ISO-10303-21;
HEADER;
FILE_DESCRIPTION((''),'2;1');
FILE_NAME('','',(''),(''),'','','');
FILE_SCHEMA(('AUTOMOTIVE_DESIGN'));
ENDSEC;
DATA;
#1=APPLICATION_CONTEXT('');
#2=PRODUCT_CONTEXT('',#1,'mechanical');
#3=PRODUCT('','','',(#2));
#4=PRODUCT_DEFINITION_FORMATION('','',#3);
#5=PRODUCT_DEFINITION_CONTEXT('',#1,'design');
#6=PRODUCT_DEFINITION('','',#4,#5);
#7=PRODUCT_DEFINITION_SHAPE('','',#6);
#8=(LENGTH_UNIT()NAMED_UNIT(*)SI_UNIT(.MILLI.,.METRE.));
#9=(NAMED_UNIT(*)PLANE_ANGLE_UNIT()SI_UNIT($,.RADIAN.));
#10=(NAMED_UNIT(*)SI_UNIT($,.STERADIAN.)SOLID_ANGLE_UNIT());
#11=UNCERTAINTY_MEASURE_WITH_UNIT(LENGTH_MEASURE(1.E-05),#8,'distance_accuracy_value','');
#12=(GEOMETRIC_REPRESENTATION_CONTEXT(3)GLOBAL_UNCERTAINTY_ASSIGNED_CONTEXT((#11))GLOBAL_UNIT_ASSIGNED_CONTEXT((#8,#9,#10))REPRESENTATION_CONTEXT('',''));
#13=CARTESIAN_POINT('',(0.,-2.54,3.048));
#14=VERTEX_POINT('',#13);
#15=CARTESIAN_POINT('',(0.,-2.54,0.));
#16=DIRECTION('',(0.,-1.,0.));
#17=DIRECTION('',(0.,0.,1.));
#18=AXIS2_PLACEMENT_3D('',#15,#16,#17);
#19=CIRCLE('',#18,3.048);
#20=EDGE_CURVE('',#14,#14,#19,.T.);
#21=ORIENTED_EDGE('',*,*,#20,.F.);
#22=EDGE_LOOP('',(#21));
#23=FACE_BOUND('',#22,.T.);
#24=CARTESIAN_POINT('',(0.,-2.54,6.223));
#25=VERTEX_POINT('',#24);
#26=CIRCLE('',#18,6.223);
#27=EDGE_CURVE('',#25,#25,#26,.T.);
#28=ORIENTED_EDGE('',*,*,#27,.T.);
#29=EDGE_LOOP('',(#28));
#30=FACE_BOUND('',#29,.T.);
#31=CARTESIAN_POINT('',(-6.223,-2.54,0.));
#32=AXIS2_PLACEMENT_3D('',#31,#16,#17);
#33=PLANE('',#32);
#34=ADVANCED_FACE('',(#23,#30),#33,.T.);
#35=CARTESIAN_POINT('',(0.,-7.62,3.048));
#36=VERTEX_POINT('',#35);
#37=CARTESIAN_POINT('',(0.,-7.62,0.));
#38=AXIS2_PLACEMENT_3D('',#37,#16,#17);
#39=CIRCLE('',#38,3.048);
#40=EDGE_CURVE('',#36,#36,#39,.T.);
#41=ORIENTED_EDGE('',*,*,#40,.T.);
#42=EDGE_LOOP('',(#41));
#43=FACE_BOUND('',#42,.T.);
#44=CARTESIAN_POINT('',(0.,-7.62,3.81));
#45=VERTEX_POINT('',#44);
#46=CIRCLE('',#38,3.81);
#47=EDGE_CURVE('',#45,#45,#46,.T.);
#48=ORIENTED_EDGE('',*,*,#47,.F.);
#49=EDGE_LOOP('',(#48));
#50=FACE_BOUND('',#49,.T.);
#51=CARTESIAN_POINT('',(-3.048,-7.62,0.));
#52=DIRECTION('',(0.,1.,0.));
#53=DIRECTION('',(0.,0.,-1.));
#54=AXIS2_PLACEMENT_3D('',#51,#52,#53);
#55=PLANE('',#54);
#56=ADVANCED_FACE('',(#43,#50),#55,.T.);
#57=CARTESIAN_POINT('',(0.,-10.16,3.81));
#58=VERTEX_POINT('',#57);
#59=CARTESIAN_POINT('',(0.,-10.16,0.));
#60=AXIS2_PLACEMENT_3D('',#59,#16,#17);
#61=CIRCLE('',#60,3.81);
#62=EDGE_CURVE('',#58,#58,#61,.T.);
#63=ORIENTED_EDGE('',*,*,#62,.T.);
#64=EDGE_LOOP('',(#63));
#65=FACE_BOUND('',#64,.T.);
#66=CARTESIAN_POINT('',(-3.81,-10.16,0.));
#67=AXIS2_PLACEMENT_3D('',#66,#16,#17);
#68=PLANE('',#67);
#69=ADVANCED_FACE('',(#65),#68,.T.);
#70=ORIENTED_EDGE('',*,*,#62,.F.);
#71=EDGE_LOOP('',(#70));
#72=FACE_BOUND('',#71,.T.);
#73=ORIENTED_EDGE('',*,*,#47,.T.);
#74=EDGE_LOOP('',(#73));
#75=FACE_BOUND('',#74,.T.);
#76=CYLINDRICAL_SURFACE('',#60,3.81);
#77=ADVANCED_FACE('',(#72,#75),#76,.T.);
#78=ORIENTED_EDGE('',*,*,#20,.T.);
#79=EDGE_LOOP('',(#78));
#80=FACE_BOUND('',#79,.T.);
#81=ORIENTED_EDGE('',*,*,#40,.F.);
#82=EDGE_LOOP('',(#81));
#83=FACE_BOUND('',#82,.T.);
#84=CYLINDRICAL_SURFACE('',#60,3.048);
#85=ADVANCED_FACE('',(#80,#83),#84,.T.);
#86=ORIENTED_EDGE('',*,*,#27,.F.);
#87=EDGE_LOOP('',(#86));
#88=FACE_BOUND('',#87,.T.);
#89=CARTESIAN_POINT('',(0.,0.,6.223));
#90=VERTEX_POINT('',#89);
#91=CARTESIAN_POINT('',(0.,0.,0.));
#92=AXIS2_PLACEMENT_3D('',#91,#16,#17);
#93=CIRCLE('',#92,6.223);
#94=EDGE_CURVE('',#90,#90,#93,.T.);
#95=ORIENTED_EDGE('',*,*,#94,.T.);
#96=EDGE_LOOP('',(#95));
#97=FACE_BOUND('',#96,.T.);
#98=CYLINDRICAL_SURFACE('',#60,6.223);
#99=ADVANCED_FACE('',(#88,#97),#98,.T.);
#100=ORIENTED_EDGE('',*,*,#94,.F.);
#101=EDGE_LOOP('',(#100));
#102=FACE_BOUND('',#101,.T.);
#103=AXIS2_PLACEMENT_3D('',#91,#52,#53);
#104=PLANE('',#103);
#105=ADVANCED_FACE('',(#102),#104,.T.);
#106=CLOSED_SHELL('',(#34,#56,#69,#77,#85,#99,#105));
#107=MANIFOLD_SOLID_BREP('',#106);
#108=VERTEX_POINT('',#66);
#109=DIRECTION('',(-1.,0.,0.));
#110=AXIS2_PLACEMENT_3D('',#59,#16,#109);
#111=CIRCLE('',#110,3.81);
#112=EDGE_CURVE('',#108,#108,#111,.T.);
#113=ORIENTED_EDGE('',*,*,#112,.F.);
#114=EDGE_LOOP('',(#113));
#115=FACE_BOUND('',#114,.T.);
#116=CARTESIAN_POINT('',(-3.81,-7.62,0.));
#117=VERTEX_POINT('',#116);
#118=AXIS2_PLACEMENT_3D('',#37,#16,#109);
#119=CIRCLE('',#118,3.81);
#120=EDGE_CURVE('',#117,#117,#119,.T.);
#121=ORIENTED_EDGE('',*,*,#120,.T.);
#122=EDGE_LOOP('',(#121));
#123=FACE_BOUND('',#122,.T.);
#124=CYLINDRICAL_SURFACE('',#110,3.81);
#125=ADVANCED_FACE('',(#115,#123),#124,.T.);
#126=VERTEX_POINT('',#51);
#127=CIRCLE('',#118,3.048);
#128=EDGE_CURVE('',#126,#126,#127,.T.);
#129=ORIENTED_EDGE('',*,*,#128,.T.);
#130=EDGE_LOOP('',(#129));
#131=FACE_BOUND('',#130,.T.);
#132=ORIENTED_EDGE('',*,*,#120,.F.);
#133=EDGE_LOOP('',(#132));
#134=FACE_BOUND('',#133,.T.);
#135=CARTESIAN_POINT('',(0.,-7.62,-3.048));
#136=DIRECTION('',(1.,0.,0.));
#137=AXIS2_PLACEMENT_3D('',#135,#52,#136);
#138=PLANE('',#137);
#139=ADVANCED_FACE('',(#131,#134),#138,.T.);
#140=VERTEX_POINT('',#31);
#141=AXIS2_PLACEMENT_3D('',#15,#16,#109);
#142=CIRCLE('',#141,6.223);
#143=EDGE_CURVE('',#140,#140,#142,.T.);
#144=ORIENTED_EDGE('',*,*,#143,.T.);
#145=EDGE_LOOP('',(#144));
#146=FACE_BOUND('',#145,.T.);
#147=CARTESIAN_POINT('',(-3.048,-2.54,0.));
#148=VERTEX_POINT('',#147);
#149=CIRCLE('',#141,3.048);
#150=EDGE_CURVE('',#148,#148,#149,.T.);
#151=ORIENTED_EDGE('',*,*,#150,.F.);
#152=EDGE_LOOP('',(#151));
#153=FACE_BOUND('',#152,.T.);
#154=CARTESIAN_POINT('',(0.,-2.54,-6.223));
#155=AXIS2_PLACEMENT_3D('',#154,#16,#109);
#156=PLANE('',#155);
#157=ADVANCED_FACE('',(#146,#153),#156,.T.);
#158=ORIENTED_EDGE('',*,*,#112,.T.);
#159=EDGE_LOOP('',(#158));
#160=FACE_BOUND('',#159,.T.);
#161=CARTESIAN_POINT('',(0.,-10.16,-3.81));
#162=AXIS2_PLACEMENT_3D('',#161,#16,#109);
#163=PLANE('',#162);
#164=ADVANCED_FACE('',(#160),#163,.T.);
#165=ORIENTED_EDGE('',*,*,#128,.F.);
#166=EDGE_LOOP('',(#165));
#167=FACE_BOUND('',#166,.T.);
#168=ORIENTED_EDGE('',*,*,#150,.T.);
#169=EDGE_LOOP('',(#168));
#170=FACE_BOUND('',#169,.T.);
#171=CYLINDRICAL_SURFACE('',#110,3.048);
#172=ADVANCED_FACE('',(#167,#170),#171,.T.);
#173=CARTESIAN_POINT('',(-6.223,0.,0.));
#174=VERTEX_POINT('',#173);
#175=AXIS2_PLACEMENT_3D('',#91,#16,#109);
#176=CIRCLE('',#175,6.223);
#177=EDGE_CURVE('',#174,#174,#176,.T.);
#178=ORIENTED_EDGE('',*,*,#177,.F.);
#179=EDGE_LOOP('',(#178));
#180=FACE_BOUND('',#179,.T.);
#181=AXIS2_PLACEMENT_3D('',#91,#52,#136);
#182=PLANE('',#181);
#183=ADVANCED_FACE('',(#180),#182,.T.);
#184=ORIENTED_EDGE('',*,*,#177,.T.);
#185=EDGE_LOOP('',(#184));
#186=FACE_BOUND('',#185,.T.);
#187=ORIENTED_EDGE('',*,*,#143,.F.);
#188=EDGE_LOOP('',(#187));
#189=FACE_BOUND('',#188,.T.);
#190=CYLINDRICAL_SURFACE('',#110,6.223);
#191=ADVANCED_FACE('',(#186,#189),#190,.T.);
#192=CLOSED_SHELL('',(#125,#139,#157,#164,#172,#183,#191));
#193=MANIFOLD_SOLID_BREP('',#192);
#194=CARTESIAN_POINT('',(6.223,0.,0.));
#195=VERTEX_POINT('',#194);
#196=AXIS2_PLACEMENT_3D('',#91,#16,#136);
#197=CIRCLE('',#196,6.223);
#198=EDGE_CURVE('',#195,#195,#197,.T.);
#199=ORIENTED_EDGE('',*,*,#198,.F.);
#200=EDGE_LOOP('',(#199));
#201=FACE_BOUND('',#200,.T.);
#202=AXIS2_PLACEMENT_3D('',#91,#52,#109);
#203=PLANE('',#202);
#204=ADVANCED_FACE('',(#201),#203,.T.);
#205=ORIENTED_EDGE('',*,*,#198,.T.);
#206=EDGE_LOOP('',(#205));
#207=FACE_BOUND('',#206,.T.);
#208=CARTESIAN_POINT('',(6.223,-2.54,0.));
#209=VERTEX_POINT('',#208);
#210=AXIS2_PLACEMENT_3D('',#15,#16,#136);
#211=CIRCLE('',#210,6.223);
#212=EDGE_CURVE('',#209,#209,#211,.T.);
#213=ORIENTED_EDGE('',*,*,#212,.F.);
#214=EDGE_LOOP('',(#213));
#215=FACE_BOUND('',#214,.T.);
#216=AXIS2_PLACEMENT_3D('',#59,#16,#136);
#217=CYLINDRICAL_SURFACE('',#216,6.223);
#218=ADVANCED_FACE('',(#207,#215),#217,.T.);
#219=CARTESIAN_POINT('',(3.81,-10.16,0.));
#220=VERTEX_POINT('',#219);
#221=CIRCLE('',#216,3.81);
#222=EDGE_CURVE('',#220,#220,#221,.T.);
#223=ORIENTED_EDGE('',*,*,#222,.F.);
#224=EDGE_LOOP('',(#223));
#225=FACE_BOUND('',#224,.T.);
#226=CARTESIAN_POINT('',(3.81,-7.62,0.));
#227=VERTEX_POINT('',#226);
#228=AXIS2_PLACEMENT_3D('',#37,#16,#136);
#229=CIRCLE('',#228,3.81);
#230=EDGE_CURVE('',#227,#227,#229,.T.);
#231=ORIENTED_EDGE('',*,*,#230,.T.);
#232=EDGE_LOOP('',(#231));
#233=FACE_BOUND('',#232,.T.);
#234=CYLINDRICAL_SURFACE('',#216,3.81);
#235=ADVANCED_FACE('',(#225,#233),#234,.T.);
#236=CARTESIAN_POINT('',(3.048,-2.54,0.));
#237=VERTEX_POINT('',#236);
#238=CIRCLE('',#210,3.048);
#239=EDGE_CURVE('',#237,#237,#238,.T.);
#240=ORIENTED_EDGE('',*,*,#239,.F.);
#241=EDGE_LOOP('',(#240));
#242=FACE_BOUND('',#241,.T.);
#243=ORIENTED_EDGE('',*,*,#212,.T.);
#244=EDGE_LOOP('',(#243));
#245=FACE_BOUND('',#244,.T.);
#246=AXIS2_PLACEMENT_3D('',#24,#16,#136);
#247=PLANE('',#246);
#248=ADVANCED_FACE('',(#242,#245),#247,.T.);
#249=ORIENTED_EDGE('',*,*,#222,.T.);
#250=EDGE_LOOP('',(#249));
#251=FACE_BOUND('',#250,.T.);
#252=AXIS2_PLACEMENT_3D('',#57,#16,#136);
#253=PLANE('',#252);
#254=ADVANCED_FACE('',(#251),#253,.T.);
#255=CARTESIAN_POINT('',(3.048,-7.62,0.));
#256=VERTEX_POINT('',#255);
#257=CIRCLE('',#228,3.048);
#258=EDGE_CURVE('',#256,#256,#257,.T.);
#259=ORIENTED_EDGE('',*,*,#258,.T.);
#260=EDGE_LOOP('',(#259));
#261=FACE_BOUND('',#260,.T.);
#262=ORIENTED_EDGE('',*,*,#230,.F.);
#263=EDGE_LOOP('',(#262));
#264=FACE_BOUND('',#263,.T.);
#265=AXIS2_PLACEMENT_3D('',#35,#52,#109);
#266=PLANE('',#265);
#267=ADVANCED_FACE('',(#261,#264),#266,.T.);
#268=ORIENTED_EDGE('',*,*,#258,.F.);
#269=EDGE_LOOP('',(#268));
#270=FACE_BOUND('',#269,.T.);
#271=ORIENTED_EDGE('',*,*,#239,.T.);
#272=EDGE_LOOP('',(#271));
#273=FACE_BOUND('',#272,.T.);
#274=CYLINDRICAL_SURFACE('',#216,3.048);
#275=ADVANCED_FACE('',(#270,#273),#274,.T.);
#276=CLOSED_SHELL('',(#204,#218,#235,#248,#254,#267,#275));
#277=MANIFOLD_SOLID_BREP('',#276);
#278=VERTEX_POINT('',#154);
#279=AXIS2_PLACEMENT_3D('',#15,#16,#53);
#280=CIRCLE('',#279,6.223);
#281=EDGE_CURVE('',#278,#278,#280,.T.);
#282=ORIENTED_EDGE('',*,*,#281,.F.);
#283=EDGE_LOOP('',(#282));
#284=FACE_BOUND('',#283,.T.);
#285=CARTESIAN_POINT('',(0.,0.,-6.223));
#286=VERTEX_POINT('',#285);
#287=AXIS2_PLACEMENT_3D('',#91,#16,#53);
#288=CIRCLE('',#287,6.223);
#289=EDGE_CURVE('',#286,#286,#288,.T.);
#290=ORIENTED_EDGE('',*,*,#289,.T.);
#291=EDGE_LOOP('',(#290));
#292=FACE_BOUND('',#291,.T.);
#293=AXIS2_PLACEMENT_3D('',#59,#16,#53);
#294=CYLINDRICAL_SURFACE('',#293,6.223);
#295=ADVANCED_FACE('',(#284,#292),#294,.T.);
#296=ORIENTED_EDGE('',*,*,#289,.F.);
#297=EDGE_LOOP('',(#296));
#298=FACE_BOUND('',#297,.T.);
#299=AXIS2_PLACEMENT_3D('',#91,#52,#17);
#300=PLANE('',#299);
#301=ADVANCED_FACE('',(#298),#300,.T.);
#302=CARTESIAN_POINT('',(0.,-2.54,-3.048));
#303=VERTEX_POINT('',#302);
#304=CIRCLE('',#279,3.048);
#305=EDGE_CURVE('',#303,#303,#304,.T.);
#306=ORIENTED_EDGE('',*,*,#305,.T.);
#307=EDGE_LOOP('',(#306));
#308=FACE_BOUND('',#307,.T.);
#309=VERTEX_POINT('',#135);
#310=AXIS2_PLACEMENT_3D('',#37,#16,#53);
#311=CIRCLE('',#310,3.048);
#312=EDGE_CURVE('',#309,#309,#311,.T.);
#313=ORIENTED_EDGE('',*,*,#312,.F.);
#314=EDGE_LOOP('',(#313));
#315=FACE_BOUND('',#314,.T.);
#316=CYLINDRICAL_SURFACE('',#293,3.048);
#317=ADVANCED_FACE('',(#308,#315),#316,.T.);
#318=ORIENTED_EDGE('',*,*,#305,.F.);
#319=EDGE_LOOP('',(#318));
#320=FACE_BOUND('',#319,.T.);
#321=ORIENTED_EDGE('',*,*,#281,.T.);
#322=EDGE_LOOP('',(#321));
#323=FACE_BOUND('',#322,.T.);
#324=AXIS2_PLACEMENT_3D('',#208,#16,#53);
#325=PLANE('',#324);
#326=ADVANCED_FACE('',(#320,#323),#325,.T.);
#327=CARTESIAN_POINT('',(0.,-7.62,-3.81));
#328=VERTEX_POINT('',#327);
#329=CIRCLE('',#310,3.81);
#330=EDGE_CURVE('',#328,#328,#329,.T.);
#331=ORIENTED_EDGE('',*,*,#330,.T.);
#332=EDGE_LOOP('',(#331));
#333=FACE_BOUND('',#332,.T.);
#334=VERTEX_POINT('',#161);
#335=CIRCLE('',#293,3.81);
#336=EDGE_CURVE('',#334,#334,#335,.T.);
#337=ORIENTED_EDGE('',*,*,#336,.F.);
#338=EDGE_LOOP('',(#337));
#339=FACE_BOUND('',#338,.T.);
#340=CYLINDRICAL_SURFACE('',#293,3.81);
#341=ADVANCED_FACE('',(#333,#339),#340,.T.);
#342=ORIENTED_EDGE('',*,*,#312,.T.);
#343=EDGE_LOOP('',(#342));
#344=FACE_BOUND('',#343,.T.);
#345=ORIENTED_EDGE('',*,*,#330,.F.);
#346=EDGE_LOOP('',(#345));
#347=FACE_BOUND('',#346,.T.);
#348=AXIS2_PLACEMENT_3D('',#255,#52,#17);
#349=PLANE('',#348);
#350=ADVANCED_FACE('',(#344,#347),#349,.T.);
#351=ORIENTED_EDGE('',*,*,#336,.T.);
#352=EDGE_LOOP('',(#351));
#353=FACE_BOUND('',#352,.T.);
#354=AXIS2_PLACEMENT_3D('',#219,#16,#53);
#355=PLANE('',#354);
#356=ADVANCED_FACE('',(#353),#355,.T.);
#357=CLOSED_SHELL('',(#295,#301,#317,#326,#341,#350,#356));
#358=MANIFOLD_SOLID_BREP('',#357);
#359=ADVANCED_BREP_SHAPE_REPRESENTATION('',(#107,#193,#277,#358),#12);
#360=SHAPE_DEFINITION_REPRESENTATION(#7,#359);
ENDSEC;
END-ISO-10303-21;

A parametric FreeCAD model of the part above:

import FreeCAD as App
import Part
import Sketcher
from FreeCAD import Vector
Q = App.Units.Quantity

doc = App.newDocument("Part")
body = doc.addObject("PartDesign::Body", "Body")

sketch1 = doc.addObject("Sketcher::SketchObject", "Sketch")
body.addObject(sketch1)
sketch1.AttachmentSupport = (doc.XY_Plane, [""])
sketch1.MapMode = "FlatFace"
sketch1.addGeometry([
    Part.LineSegment(Vector(6.223, 0, 0), Vector(0, 0, 0)),
    Part.LineSegment(Vector(0, 0, 0), Vector(0, -10.16, 0)),
    Part.LineSegment(Vector(0, -10.16, 0), Vector(3.81, -10.16, 0)),
    Part.LineSegment(Vector(3.81, -10.16, 0), Vector(3.81, -7.62, 0)),
    Part.LineSegment(Vector(3.81, -7.62, 0), Vector(3.048, -7.62, 0)),
    Part.LineSegment(Vector(3.048, -7.62, 0), Vector(3.048, -2.54, 0)),
    Part.LineSegment(Vector(3.048, -2.54, 0), Vector(6.223, -2.54, 0)),
    Part.LineSegment(Vector(6.223, -2.54, 0), Vector(6.223, 0, 0)),
], False)
sketch1.addConstraint([
    Sketcher.Constraint("Coincident", 0, 2, 1, 1),
    Sketcher.Constraint("Coincident", 1, 2, 2, 1),
    Sketcher.Constraint("Coincident", 2, 2, 3, 1),
    Sketcher.Constraint("Coincident", 3, 2, 4, 1),
    Sketcher.Constraint("Coincident", 4, 2, 5, 1),
    Sketcher.Constraint("Coincident", 5, 2, 6, 1),
    Sketcher.Constraint("Coincident", 6, 2, 7, 1),
    Sketcher.Constraint("Coincident", 7, 2, 0, 1),
    Sketcher.Constraint("Horizontal", 0),
    Sketcher.Constraint("Vertical", 1),
    Sketcher.Constraint("Horizontal", 2),
    Sketcher.Constraint("Vertical", 3),
    Sketcher.Constraint("Horizontal", 4),
    Sketcher.Constraint("Vertical", 5),
    Sketcher.Constraint("Horizontal", 6),
    Sketcher.Constraint("Vertical", 7),
    Sketcher.Constraint("Coincident", 0, 2, -1, 1),
    Sketcher.Constraint("Equal", 3, 7),
    Sketcher.Constraint("DistanceY", 1, 2, 1, 1, Q("0.4 in")),
    Sketcher.Constraint("DistanceY", 3, 1, 3, 2, Q("0.1 in")),
    Sketcher.Constraint("DistanceX", 2, 1, 2, 2, Q("0.15 in")),
    Sketcher.Constraint("DistanceX", 4, 2, 4, 1, Q("0.03 in")),
    Sketcher.Constraint("DistanceX", 0, 2, 0, 1, Q("0.245 in")),
])
revolution = doc.addObject("PartDesign::Revolution", "Revolution")
body.addObject(revolution)
revolution.Profile = sketch1
revolution.ReferenceAxis = (sketch1, ["V_Axis"])
revolution.Angle = 360
body2 = doc.addObject("PartDesign::Body", "Body001")
doc.recompute()

body3 = doc.addObject("PartDesign::Body", "Body002")
body3.BaseFeature = body
body3.Placement = App.Placement(Vector(0, 0, 0), App.Rotation(Vector(0, -1, 0), 90))
boolean = doc.addObject("PartDesign::Boolean", "Boolean")
body2.addObject(boolean)
boolean.Type = "Fuse"
boolean.addObjects([body3])
doc.recompute()
body4 = doc.addObject("PartDesign::Body", "Body003")
doc.recompute()

body5 = doc.addObject("PartDesign::Body", "Body004")
body5.BaseFeature = body
body5.Placement = App.Placement(Vector(0, 0, 0), App.Rotation(Vector(0, -1, 0), 180))
boolean2 = doc.addObject("PartDesign::Boolean", "Boolean001")
body4.addObject(boolean2)
boolean2.Type = "Fuse"
boolean2.addObjects([body5])
doc.recompute()
body6 = doc.addObject("PartDesign::Body", "Body005")
doc.recompute()

body7 = doc.addObject("PartDesign::Body", "Body006")
body7.BaseFeature = body
body7.Placement = App.Placement(Vector(0, 0, 0), App.Rotation(Vector(0, -1, 0), 270))
boolean3 = doc.addObject("PartDesign::Boolean", "Boolean002")
body6.addObject(boolean3)
boolean3.Type = "Fuse"
boolean3.addObjects([body7])
doc.recompute()

doc.recompute()
